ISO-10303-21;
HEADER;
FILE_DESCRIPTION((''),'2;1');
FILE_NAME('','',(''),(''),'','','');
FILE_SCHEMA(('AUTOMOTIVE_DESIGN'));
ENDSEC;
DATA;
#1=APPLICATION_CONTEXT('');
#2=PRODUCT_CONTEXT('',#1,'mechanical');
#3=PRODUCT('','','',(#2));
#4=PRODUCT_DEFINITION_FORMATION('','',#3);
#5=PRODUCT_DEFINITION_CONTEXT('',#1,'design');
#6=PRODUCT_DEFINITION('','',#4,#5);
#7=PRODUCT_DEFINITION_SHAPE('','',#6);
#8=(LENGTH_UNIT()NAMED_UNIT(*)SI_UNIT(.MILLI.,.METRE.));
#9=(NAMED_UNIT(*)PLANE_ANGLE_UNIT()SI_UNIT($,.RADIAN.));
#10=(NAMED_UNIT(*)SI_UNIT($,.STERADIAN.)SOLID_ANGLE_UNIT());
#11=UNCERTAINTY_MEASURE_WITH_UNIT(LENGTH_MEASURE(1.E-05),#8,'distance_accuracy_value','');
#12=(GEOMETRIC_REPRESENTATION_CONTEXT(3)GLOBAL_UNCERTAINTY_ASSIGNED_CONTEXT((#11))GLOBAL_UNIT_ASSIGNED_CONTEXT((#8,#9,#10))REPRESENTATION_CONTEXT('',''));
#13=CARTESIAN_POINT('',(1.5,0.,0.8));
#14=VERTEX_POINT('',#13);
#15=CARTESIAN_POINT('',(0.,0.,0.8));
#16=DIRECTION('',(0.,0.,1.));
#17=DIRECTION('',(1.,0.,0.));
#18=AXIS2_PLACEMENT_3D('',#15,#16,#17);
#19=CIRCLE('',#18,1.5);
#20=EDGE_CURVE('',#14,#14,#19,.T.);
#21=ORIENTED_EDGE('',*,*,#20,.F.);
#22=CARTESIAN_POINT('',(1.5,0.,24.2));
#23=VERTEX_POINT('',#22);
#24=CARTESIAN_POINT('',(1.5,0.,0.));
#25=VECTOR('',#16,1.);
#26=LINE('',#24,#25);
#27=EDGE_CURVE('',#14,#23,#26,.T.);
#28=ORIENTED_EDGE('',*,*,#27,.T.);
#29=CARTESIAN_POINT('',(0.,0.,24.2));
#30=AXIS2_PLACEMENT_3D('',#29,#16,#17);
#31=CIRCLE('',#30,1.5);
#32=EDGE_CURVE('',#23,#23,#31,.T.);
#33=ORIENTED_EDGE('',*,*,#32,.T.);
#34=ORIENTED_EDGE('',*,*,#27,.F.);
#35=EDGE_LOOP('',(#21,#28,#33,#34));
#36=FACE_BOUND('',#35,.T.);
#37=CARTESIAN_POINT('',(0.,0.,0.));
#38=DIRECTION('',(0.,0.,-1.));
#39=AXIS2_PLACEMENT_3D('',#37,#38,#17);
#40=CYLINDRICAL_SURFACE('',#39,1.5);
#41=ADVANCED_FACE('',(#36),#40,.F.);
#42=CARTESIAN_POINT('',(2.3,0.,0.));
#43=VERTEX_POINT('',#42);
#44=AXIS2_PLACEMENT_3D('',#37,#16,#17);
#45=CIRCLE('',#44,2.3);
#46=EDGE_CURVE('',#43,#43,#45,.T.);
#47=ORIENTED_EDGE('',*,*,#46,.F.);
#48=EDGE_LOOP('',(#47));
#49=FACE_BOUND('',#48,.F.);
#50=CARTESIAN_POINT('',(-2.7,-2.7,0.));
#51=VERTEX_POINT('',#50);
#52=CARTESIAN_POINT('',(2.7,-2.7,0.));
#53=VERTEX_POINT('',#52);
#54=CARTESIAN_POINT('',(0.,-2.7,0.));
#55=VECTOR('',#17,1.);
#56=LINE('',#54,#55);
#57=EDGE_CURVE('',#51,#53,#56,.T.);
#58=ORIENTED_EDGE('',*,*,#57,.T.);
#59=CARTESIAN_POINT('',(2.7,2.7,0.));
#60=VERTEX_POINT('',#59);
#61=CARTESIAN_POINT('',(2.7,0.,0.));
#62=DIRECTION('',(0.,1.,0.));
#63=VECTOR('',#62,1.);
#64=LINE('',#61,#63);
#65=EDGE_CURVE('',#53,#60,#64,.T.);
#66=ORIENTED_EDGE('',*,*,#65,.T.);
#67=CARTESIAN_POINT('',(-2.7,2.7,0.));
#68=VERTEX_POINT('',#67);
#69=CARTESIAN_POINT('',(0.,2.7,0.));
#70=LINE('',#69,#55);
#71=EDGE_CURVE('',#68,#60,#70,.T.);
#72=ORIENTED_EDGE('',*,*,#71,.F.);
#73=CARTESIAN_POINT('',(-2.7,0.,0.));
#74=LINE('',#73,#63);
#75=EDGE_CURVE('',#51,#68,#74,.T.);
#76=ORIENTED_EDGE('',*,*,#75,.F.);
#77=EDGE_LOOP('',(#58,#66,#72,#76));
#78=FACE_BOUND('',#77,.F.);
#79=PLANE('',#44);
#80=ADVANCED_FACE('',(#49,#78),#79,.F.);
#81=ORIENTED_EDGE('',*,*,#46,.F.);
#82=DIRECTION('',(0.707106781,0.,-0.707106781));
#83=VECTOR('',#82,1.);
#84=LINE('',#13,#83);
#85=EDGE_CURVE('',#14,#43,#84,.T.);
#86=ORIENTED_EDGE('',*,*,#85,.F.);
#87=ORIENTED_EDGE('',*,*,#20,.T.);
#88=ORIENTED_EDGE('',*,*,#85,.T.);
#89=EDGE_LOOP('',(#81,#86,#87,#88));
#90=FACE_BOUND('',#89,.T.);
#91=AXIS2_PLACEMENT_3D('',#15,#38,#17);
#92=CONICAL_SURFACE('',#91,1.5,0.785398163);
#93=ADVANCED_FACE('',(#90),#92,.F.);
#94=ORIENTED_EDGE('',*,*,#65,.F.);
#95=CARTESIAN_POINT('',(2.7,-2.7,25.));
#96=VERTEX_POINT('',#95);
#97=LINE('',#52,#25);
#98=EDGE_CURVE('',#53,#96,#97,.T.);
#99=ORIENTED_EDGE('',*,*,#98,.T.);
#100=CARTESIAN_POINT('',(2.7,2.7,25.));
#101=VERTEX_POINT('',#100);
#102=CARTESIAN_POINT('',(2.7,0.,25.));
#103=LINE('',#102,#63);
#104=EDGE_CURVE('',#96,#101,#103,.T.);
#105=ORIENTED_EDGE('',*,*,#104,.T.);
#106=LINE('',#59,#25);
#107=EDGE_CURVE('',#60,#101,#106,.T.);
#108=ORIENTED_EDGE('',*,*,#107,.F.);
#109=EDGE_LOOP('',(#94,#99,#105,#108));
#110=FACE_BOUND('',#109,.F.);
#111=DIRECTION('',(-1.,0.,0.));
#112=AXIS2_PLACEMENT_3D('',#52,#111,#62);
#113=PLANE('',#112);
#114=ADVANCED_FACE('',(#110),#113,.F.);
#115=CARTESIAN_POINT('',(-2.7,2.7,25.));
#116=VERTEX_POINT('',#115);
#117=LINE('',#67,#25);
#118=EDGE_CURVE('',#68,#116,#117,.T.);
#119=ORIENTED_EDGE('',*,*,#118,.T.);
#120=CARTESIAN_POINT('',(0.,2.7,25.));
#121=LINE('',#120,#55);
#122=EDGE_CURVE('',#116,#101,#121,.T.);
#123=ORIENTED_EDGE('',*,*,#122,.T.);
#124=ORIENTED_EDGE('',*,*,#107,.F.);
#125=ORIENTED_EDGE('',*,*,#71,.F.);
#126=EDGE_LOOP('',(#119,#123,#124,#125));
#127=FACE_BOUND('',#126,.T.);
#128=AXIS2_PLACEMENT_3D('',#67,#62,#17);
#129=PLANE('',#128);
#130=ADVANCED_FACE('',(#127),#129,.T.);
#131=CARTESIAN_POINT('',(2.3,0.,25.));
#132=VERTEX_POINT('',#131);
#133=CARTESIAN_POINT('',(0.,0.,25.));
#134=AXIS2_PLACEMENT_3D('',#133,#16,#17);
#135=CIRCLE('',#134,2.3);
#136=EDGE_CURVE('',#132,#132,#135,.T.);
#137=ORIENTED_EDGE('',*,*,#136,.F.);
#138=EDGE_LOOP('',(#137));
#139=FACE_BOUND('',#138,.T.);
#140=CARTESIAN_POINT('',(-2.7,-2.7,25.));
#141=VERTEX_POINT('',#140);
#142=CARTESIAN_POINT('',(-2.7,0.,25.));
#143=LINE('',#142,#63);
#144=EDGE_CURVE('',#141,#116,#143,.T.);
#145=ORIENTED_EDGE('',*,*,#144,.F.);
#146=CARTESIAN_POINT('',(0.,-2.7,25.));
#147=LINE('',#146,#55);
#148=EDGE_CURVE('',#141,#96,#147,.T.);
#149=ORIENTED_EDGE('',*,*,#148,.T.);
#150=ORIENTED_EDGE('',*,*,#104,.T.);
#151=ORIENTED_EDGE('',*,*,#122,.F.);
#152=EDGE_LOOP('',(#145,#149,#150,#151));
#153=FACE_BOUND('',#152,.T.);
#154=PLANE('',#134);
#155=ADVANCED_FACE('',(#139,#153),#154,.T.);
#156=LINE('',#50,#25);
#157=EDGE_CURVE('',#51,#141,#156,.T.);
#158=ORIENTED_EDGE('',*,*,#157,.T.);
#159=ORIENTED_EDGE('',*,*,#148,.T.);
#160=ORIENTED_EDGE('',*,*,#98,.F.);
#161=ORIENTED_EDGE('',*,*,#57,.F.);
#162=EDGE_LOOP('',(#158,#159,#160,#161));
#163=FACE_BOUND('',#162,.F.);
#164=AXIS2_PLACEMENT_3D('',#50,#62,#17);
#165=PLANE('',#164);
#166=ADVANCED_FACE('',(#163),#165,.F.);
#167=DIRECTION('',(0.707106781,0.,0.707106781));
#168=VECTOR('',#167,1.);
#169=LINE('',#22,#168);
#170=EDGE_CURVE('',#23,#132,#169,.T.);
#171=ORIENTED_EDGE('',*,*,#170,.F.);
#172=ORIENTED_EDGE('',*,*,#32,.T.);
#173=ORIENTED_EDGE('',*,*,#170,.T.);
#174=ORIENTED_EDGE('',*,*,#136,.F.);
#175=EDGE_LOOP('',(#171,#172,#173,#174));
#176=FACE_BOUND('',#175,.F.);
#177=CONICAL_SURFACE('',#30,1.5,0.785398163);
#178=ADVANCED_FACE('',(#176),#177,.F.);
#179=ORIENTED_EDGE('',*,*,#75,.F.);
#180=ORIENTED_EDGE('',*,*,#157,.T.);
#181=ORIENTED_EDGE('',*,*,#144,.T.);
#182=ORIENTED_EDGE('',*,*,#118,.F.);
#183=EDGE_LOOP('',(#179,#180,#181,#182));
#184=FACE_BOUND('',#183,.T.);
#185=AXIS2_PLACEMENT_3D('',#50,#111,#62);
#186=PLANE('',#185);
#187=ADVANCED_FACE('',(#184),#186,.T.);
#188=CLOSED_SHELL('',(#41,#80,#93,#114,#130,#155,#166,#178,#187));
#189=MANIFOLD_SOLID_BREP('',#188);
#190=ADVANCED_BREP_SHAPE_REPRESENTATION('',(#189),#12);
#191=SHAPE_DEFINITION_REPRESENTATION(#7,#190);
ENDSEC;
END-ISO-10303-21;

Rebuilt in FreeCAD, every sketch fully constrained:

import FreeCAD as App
import Part
import Sketcher
Q = App.Units.Quantity


def edges_at(feature, points):
    """Names of the edges that pass closest to the given points."""
    edges = feature.Shape.Edges
    near = lambda p: min(range(len(edges)), key=lambda i: edges[i].distToShape(Part.Vertex(*p))[0])
    return sorted({f"Edge{near(p) + 1}" for p in points})

doc = App.newDocument("Part")
body = doc.addObject("PartDesign::Body", "Body")

# Sketch on XY plane
sketch1 = body.newObject("Sketcher::SketchObject", "Sketch")
sketch1.AttachmentSupport = (doc.getObject("XY_Plane"), [""])
sketch1.MapMode = "FlatFace"
sketch1.addGeometry(Part.LineSegment(App.Vector(-2.7, 2.7, 0), App.Vector(-2.7, -2.7, 0)), False)
sketch1.addGeometry(Part.LineSegment(App.Vector(-2.7, -2.7, 0), App.Vector(2.7, -2.7, 0)), False)
sketch1.addGeometry(Part.LineSegment(App.Vector(2.7, -2.7, 0), App.Vector(2.7, 2.7, 0)), False)
sketch1.addGeometry(Part.LineSegment(App.Vector(2.7, 2.7, 0), App.Vector(-2.7, 2.7, 0)), False)
sketch1.addGeometry(Part.Circle(App.Vector(0, 0, 0), App.Vector(0, 0, 1), 1.5), False)
sketch1.addConstraint(Sketcher.Constraint("Coincident", 0, 2, 1, 1))
sketch1.addConstraint(Sketcher.Constraint("Coincident", 1, 2, 2, 1))
sketch1.addConstraint(Sketcher.Constraint("Coincident", 2, 2, 3, 1))
sketch1.addConstraint(Sketcher.Constraint("Coincident", 3, 2, 0, 1))
sketch1.addConstraint(Sketcher.Constraint("Vertical", 0))
sketch1.addConstraint(Sketcher.Constraint("Horizontal", 1))
sketch1.addConstraint(Sketcher.Constraint("Vertical", 2))
sketch1.addConstraint(Sketcher.Constraint("Horizontal", 3))
sketch1.addConstraint(Sketcher.Constraint("Coincident", 4, 3, -1, 1))
sketch1.addConstraint(Sketcher.Constraint("Symmetric", 0, 2, 2, 2, -1, 1))
sketch1.addConstraint(Sketcher.Constraint("Equal", 3, 0))
sketch1.addConstraint(Sketcher.Constraint("Diameter", 4, Q("3 mm")))
sketch1.addConstraint(Sketcher.Constraint("DistanceX", 1, 1, 1, 2, Q("5.4 mm")))
pad1 = body.newObject("PartDesign::Pad", "Pad")
pad1.Profile = sketch1
pad1.Length = 25
doc.recompute()

chamfer = body.newObject("PartDesign::Chamfer", "Chamfer")
chamfer.Base = (pad1, edges_at(pad1, [(-1.5, 0, 25), (-1.5, 0, 0)]))
chamfer.Size = 0.8

doc.recompute()
